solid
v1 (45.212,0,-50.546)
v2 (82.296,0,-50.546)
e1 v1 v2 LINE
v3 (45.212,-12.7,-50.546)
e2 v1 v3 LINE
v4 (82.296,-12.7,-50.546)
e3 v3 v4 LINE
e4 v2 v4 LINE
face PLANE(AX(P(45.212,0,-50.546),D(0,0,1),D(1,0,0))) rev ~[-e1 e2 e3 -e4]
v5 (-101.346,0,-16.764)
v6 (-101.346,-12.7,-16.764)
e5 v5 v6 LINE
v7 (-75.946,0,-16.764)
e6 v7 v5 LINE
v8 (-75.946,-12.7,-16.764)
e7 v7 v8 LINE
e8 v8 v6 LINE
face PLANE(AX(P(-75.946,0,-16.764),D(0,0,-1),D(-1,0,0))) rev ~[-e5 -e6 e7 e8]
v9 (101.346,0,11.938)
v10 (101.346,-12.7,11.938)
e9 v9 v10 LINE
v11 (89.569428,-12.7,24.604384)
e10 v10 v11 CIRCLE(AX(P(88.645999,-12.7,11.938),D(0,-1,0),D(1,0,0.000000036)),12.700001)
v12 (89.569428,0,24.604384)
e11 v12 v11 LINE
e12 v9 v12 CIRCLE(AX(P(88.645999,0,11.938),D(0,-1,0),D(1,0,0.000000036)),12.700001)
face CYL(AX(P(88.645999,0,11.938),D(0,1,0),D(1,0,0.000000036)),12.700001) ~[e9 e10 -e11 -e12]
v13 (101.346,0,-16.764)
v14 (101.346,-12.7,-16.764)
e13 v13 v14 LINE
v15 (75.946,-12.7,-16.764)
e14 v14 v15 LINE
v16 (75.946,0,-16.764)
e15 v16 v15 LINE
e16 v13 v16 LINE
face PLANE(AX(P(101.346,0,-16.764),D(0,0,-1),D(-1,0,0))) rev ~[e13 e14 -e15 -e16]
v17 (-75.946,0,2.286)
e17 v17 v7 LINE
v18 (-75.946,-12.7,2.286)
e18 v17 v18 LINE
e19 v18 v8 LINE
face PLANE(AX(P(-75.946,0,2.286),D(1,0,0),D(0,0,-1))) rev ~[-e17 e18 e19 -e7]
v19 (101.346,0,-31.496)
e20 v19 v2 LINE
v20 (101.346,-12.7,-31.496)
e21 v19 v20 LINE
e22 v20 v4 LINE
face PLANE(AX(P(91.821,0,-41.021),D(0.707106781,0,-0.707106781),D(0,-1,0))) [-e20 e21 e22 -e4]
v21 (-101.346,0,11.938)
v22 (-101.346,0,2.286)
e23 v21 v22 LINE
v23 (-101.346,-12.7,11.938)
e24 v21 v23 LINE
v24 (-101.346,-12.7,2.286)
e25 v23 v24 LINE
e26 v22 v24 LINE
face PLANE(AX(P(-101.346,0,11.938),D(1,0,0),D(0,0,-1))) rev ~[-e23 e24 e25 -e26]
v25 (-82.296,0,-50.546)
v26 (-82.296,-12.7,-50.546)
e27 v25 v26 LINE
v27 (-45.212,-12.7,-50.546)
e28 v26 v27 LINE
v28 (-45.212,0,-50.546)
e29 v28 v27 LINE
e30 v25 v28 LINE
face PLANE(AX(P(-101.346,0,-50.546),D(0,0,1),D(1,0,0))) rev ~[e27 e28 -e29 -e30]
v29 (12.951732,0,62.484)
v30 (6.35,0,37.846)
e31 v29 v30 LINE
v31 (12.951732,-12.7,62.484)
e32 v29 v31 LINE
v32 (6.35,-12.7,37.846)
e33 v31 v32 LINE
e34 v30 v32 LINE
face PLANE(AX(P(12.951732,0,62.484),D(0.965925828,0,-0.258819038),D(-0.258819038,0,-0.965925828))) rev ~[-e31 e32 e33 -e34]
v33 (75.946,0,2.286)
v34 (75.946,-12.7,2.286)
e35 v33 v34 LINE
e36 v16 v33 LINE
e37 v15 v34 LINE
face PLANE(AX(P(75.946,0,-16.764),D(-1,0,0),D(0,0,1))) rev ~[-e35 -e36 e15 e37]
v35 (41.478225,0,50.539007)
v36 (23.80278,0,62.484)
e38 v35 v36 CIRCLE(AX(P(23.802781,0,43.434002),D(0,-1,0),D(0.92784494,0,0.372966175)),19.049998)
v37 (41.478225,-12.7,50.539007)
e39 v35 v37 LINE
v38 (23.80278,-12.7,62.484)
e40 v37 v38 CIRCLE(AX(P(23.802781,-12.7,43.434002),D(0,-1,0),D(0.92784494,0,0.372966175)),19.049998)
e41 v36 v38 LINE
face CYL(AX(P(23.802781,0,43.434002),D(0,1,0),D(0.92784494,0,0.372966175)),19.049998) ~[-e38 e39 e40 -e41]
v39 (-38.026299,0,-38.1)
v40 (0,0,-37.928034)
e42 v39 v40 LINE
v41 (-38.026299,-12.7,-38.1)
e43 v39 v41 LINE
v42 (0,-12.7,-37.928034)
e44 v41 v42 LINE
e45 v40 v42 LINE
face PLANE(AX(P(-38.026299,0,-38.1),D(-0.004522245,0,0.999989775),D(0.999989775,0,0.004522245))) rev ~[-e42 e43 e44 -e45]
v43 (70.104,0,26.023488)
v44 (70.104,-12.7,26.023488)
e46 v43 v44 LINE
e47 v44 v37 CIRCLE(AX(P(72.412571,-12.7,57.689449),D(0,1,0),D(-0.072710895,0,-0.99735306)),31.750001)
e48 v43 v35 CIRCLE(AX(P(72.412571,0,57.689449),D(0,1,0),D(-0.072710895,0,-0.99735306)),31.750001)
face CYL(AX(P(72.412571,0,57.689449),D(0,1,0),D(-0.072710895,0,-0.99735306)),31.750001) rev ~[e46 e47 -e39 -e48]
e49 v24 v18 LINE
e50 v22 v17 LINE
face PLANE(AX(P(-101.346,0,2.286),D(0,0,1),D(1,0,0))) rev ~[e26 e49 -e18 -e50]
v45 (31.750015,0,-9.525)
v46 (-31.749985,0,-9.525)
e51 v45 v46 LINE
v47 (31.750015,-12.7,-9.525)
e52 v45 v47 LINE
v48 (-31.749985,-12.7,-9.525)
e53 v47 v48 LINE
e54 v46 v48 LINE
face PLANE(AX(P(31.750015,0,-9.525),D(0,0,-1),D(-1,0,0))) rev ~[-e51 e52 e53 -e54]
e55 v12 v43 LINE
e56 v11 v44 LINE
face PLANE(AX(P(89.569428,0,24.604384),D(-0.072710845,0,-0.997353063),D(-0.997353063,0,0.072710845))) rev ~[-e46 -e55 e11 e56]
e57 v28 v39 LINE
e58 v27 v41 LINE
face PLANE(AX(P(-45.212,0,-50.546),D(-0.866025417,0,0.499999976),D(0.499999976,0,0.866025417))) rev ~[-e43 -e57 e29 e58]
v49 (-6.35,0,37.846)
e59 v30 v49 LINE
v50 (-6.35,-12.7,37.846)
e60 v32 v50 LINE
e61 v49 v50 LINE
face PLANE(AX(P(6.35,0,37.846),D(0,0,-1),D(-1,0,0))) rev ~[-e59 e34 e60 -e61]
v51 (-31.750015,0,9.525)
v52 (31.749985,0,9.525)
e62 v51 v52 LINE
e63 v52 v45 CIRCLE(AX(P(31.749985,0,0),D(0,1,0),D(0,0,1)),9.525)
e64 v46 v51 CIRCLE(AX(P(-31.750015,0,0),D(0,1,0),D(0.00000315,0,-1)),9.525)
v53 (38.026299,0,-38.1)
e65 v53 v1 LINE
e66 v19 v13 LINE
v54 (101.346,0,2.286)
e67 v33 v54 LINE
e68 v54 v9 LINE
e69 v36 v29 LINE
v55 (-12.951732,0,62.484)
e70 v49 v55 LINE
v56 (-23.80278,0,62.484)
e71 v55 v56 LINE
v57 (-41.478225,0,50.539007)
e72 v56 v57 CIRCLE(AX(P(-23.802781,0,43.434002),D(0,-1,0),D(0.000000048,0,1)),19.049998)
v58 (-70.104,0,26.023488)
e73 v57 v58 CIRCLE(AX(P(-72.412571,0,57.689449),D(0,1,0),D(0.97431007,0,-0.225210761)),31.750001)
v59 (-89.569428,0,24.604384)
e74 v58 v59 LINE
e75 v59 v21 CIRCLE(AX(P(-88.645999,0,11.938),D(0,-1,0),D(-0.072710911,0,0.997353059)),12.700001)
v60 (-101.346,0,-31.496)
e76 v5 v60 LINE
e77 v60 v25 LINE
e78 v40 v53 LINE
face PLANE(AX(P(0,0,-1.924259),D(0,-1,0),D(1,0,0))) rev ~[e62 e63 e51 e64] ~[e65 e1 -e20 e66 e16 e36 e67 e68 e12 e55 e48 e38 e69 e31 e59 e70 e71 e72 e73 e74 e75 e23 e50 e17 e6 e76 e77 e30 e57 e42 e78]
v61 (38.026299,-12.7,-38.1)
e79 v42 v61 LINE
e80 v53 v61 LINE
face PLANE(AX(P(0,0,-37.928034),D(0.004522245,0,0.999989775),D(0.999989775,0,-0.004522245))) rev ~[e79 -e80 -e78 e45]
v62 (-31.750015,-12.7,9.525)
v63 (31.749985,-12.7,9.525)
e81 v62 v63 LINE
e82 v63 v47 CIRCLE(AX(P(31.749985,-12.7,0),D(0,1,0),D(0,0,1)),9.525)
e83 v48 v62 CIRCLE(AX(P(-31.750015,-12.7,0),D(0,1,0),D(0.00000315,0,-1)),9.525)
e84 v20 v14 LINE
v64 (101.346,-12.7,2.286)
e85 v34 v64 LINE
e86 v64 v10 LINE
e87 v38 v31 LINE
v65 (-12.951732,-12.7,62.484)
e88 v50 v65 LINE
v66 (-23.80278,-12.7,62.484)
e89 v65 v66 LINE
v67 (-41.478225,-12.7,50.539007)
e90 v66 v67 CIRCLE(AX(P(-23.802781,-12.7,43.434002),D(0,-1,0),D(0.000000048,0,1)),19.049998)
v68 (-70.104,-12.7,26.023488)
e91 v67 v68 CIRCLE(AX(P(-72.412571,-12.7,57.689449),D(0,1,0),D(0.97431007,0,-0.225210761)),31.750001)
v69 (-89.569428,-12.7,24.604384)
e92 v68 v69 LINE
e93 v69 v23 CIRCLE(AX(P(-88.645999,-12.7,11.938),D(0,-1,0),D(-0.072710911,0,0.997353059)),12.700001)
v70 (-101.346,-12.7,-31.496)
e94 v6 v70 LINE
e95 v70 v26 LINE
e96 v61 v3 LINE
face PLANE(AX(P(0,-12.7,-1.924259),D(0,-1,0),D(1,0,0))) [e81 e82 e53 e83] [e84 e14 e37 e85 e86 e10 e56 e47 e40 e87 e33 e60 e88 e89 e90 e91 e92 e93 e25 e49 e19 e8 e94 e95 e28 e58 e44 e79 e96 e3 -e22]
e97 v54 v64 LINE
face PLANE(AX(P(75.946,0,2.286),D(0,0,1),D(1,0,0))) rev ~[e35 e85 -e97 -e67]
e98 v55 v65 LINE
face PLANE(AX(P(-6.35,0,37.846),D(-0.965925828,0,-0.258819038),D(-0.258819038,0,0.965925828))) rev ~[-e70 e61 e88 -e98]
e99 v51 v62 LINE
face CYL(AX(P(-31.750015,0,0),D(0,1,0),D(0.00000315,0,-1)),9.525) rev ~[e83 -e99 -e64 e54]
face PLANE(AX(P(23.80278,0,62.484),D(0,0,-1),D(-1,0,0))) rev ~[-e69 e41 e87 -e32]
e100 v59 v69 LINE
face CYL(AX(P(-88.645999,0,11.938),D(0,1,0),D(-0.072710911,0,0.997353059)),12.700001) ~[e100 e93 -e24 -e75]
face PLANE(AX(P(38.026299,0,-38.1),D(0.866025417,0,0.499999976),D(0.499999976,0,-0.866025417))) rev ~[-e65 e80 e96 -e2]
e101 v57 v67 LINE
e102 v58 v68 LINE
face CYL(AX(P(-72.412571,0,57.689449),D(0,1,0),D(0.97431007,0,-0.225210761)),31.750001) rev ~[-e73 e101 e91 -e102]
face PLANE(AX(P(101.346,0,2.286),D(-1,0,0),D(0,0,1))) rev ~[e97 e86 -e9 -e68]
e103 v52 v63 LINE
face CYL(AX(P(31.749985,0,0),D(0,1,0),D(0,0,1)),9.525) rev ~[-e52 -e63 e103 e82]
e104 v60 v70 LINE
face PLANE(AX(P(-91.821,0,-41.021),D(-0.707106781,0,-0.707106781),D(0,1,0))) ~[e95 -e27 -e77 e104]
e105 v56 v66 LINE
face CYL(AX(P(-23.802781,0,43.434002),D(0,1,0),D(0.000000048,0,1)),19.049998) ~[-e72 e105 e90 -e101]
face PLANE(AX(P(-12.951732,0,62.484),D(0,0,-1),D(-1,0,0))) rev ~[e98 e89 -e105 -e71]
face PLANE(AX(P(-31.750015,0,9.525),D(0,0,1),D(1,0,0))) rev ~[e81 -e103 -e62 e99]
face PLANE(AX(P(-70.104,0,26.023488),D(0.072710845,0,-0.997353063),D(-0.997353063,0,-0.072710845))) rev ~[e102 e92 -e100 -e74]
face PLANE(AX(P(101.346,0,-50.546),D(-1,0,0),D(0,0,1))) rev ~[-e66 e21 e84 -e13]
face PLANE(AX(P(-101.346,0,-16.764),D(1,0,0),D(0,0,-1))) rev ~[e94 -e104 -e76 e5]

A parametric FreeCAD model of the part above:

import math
import FreeCAD as App
import Part
import Sketcher
from FreeCAD import Vector
Q = App.Units.Quantity


def edges_at(feature, points):
    """Names of the edges that pass closest to the given points."""
    edges = feature.Shape.Edges
    near = lambda p: min(range(len(edges)), key=lambda i: edges[i].distToShape(Part.Vertex(*p))[0])
    return sorted({f"Edge{near(p) + 1}" for p in points})

doc = App.newDocument("Part")
params = doc.addObject("Spreadsheet::Sheet", "Params")
for row, (alias, value) in enumerate([
    ("sketch1_radius", "0.5 in"),
    ("sketch1_width", "1 in"),
    ("sketch1_radius2", "0.7499999 in"),
    ("sketch1_radius3", "1.2500001 in"),
    ("sketch1_width2", "0.5 in"),
    ("pad1_length", "0.5 in"),
    ("chamfer_size", "0.75 in"),
    ("chamfer_size2", "0.75 in"),
], start=1):
    params.set(f"A{row}", alias)
    params.set(f"B{row}", "=" + value)
    params.setAlias(f"B{row}", alias)

body = doc.addObject("PartDesign::Body", "Body")

# Sketch on XZ plane
sketch1 = body.newObject("Sketcher::SketchObject", "Sketch")
sketch1.AttachmentSupport = (doc.getObject("XZ_Plane"), [""])
sketch1.MapMode = "FlatFace"
sketch1.addGeometry([
    Part.LineSegment(Vector(6.35, 37.846, 0), Vector(-6.35, 37.846, 0)),  # 0
    Part.LineSegment(Vector(-6.35, 37.846, 0), Vector(-12.951732, 62.484, 0)),  # 1
    Part.LineSegment(Vector(-12.951732, 62.484, 0), Vector(-23.80278, 62.484, 0)),  # 2
    Part.ArcOfCircle(Part.Circle(Vector(-23.802781, 43.434002, 0), Vector(0, 0, 1), 19.049998), math.radians(89.999997), math.radians(158.101334)),  # 3
    Part.ArcOfCircle(Part.Circle(Vector(-72.412571, 57.689449, 0), Vector(0, 0, 1), 31.750001), math.radians(-85.830293), math.radians(-13.015272)),  # 4
    Part.LineSegment(Vector(-70.104, 26.023488, 0), Vector(-89.569428, 24.604384, 0)),  # 5
    Part.ArcOfCircle(Part.Circle(Vector(-88.645999, 11.938, 0), Vector(0, 0, 1), 12.700001), math.radians(94.169708), math.radians(179.999998)),  # 6
    Part.LineSegment(Vector(-101.346, 11.938, 0), Vector(-101.346, 2.286, 0)),  # 7
    Part.LineSegment(Vector(-101.346, 2.286, 0), Vector(-75.946, 2.286, 0)),  # 8
    Part.LineSegment(Vector(-75.946, 2.286, 0), Vector(-75.946, -16.764, 0)),  # 9
    Part.LineSegment(Vector(-75.946, -16.764, 0), Vector(-101.346, -16.764, 0)),  # 10
    Part.LineSegment(Vector(-101.346, -16.764, 0), Vector(-101.346, -50.546, 0)),  # 11
    Part.LineSegment(Vector(-101.346, -50.546, 0), Vector(-45.212, -50.546, 0)),  # 12
    Part.LineSegment(Vector(-45.212, -50.546, 0), Vector(-38.026299, -38.1, 0)),  # 13
    Part.LineSegment(Vector(-38.026299, -38.1, 0), Vector(0, -37.928034, 0)),  # 14
    Part.LineSegment(Vector(0, -37.928034, 0), Vector(38.026299, -38.1, 0)),  # 15
    Part.LineSegment(Vector(38.026299, -38.1, 0), Vector(45.212, -50.546, 0)),  # 16
    Part.LineSegment(Vector(45.212, -50.546, 0), Vector(101.346, -50.546, 0)),  # 17
    Part.LineSegment(Vector(101.346, -50.546, 0), Vector(101.346, -16.764, 0)),  # 18
    Part.LineSegment(Vector(101.346, -16.764, 0), Vector(75.946, -16.764, 0)),  # 19
    Part.LineSegment(Vector(75.946, -16.764, 0), Vector(75.946, 2.286, 0)),  # 20
    Part.LineSegment(Vector(75.946, 2.286, 0), Vector(101.346, 2.286, 0)),  # 21
    Part.LineSegment(Vector(101.346, 2.286, 0), Vector(101.346, 11.938, 0)),  # 22
    Part.ArcOfCircle(Part.Circle(Vector(88.645999, 11.938, 0), Vector(0, 0, 1), 12.700001), math.radians(0.000002), math.radians(85.830292)),  # 23
    Part.LineSegment(Vector(89.569428, 24.604384, 0), Vector(70.104, 26.023488, 0)),  # 24
    Part.ArcOfCircle(Part.Circle(Vector(72.412571, 57.689449, 0), Vector(0, 0, 1), 31.750001), math.radians(-166.984728), math.radians(-94.169707)),  # 25
    Part.ArcOfCircle(Part.Circle(Vector(23.802781, 43.434002, 0), Vector(0, 0, 1), 19.049998), math.radians(21.898666), math.radians(90.000003)),  # 26
    Part.LineSegment(Vector(23.80278, 62.484, 0), Vector(12.951732, 62.484, 0)),  # 27
    Part.LineSegment(Vector(12.951732, 62.484, 0), Vector(6.35, 37.846, 0)),  # 28
    Part.ArcOfCircle(Part.Circle(Vector(-31.750015, 0, 0), Vector(0, 0, 1), 9.525), math.radians(90), math.radians(270.00018)),  # 29
    Part.LineSegment(Vector(-31.750015, 9.525, 0), Vector(31.749985, 9.525, 0)),  # 30
    Part.ArcOfCircle(Part.Circle(Vector(31.749985, 0, 0), Vector(0, 0, 1), 9.525), math.radians(-89.99982), math.radians(90)),  # 31
    Part.LineSegment(Vector(31.750015, -9.525, 0), Vector(-31.749985, -9.525, 0)),  # 32
], False)
sketch1.addConstraint([
    Sketcher.Constraint("Coincident", 0, 2, 1, 1),
    Sketcher.Constraint("Coincident", 1, 2, 2, 1),
    Sketcher.Constraint("Tangent", 2, 2, 3, 1),
    Sketcher.Constraint("Coincident", 3, 2, 4, 2),
    Sketcher.Constraint("Tangent", 4, 1, 5, 1),
    Sketcher.Constraint("Tangent", 5, 2, 6, 1),
    Sketcher.Constraint("Tangent", 6, 2, 7, 1),
    Sketcher.Constraint("Coincident", 7, 2, 8, 1),
    Sketcher.Constraint("Coincident", 8, 2, 9, 1),
    Sketcher.Constraint("Coincident", 9, 2, 10, 1),
    Sketcher.Constraint("Coincident", 10, 2, 11, 1),
    Sketcher.Constraint("Coincident", 11, 2, 12, 1),
    Sketcher.Constraint("Coincident", 12, 2, 13, 1),
    Sketcher.Constraint("Coincident", 13, 2, 14, 1),
    Sketcher.Constraint("Coincident", 14, 2, 15, 1),
    Sketcher.Constraint("Coincident", 15, 2, 16, 1),
    Sketcher.Constraint("Coincident", 16, 2, 17, 1),
    Sketcher.Constraint("Coincident", 17, 2, 18, 1),
    Sketcher.Constraint("Coincident", 18, 2, 19, 1),
    Sketcher.Constraint("Coincident", 19, 2, 20, 1),
    Sketcher.Constraint("Coincident", 20, 2, 21, 1),
    Sketcher.Constraint("Coincident", 21, 2, 22, 1),
    Sketcher.Constraint("Tangent", 22, 2, 23, 1),
    Sketcher.Constraint("Tangent", 23, 2, 24, 1),
    Sketcher.Constraint("Tangent", 24, 2, 25, 2),
    Sketcher.Constraint("Coincident", 25, 1, 26, 1),
    Sketcher.Constraint("Tangent", 26, 2, 27, 1),
    Sketcher.Constraint("Coincident", 27, 2, 28, 1),
    Sketcher.Constraint("Coincident", 28, 2, 0, 1),
    Sketcher.Constraint("Tangent", 29, 1, 30, 1),
    Sketcher.Constraint("Tangent", 30, 2, 31, 2),
    Sketcher.Constraint("Coincident", 31, 1, 32, 1),
    Sketcher.Constraint("Coincident", 32, 2, 29, 2),
    Sketcher.Constraint("Horizontal", 0),
    Sketcher.Constraint("Horizontal", 2),
    Sketcher.Constraint("Vertical", 7),
    Sketcher.Constraint("Horizontal", 8),
    Sketcher.Constraint("Vertical", 9),
    Sketcher.Constraint("Horizontal", 10),
    Sketcher.Constraint("Vertical", 11),
    Sketcher.Constraint("Horizontal", 12),
    Sketcher.Constraint("Horizontal", 17),
    Sketcher.Constraint("Vertical", 18),
    Sketcher.Constraint("Horizontal", 19),
    Sketcher.Constraint("Vertical", 20),
    Sketcher.Constraint("Horizontal", 21),
    Sketcher.Constraint("Vertical", 22),
    Sketcher.Constraint("Horizontal", 27),
    Sketcher.Constraint("Horizontal", 30),
    Sketcher.Constraint("Horizontal", 32),
    Sketcher.Constraint("Equal", 6, 23),
    Sketcher.Constraint("Equal", 4, 25),
    Sketcher.Constraint("Equal", 3, 26),
    Sketcher.Constraint("Symmetric", 29, 1, 31, 1, -1, 1),
    Sketcher.Constraint("Symmetric", 6, 3, 23, 3, -2),
    Sketcher.Constraint("Symmetric", 4, 3, 25, 3, -2),
    Sketcher.Constraint("Symmetric", 3, 3, 26, 3, -2),
    Sketcher.Constraint("Symmetric", 13, 2, 15, 2, -2),
    Sketcher.Constraint("Symmetric", 12, 2, 16, 2, -2),
    Sketcher.Constraint("Symmetric", 10, 2, 18, 2, -2),
    Sketcher.Constraint("Symmetric", 8, 2, 20, 2, -2),
    Sketcher.Constraint("PointOnObject", 14, 2, -2),
    Sketcher.Constraint("Vertical", 7, 2, 10, 2),
    Sketcher.Constraint("Equal", 2, 27),
    Sketcher.Constraint("Equal", 30, 32),
    Sketcher.Constraint("Equal", 1, 28),
    Sketcher.Constraint("Radius", 6, Q("0.5 in")),
    Sketcher.Constraint("DistanceX", 8, 1, 8, 2, Q("1 in")),
    Sketcher.Constraint("Radius", 3, Q("0.7499999 in")),
    Sketcher.Constraint("Radius", 4, Q("1.2500001 in")),
    Sketcher.Constraint("DistanceX", 0, 2, 0, 1, Q("0.5 in")),
    Sketcher.Constraint("DistanceX", 30, 1, 30, 2, Q("2.5 in")),
    Sketcher.Constraint("Angle", 1, Q("105 deg")),
    Sketcher.Constraint("Angle", 13, Q("60.000002 deg")),
    Sketcher.Constraint("Radius", 29, Q("0.375 in")),
    Sketcher.Constraint("DistanceX", 12, 1, 12, 2, Q("2.21 in")),
    Sketcher.Constraint("DistanceY", 7, 2, 7, 1, Q("0.38 in")),
    Sketcher.Constraint("DistanceY", 9, 2, 9, 1, Q("0.75 in")),
    Sketcher.Constraint("DistanceY", 11, 2, 11, 1, Q("1.33 in")),
    Sketcher.Constraint("DistanceY", 13, 2, -1, 1, Q("1.5 in")),
    Sketcher.Constraint("DistanceY", -1, 1, 3, 3, Q("1.7100001 in")),
    Sketcher.Constraint("DistanceX", 6, 3, -1, 1, Q("3.49 in")),
    Sketcher.Constraint("DistanceY", -1, 1, 6, 3, Q("0.47 in")),
    Sketcher.Constraint("DistanceY", -1, 1, 0, 2, Q("1.49 in")),
    Sketcher.Constraint("DistanceX", 4, 1, -1, 1, Q("2.76 in")),
    Sketcher.Constraint("Distance", 5, Q("19.517088 mm")),
    Sketcher.Constraint("DistanceX", 2, 2, 2, 1, Q("10.851048 mm")),
    Sketcher.Constraint("DistanceX", 31, 3, 25, 1, Q("9.72824 mm")),
    Sketcher.Constraint("Distance", 14, Q("38.026688 mm")),
])
sketch1.setExpression("Constraints[66]", "Params.sketch1_radius")
sketch1.setExpression("Constraints[67]", "Params.sketch1_width")
sketch1.setExpression("Constraints[68]", "Params.sketch1_radius2")
sketch1.setExpression("Constraints[69]", "Params.sketch1_radius3")
sketch1.setExpression("Constraints[70]", "Params.sketch1_width2")
pad1 = body.newObject("PartDesign::Pad", "Pad")
pad1.Profile = sketch1
pad1.setExpression("Length", "Params.pad1_length")
doc.recompute()

chamfer = body.newObject("PartDesign::Chamfer", "Chamfer")
chamfer.Base = (pad1, edges_at(pad1, [(-101.346, -6.35, -50.546), (101.346, -6.35, -50.546)]))
chamfer.ChamferType = "Two distances"
chamfer.setExpression("Size", "Params.chamfer_size")
chamfer.setExpression("Size2", "Params.chamfer_size2")

doc.recompute()
